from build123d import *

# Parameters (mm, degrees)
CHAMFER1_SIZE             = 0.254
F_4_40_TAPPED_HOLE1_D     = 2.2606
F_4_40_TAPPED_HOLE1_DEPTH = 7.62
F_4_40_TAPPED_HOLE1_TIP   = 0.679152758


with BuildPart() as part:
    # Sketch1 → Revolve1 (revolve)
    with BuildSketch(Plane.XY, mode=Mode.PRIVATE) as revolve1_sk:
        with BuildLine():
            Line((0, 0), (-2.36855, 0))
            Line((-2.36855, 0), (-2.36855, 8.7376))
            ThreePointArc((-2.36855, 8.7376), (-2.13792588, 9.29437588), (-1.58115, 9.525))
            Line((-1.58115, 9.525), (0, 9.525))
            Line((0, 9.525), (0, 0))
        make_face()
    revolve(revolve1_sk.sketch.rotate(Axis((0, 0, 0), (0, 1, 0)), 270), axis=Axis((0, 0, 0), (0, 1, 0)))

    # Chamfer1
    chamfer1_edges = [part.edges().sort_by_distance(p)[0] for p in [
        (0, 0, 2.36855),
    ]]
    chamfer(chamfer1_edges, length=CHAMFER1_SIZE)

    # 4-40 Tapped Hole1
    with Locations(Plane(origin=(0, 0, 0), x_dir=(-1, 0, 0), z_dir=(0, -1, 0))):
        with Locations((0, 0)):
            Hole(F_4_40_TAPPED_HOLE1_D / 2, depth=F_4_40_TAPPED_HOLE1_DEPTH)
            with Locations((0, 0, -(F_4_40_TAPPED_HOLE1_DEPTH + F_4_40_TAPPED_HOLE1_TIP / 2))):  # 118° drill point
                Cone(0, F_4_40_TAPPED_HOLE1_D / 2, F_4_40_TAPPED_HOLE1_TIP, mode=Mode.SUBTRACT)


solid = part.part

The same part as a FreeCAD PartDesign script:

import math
import FreeCAD as App
import Part
import Sketcher
from FreeCAD import Vector
Q = App.Units.Quantity


def edges_at(feature, points):
    """Names of the edges that pass closest to the given points."""
    edges = feature.Shape.Edges
    near = lambda p: min(range(len(edges)), key=lambda i: edges[i].distToShape(Part.Vertex(*p))[0])
    return sorted({f"Edge{near(p) + 1}" for p in points})

doc = App.newDocument("Part")
params = doc.addObject("Spreadsheet::Sheet", "Params")
for row, (alias, value) in enumerate([
    ("sketch1_radius", "0.031 in"),
    ("sketch1_height", "0.375 in"),
    ("revolution_angle", "360 deg"),
    ("chamfer_size", "0.01 in"),
    ("sketch2_diameter", "0.089 in"),
    ("hole_diameter", "0.089 in"),
    ("hole_depth", "0.3 in"),
], start=1):
    params.set(f"A{row}", alias)
    params.set(f"B{row}", "=" + value)
    params.setAlias(f"B{row}", alias)

body = doc.addObject("PartDesign::Body", "Body")

sketch1 = body.newObject("Sketcher::SketchObject", "Sketch")
sketch1.AttachmentSupport = (doc.getObject("XY_Plane"), [""])
sketch1.MapMode = "FlatFace"
sketch1.addGeometry(Part.LineSegment(Vector(-2.4, 0, 0), Vector(0, 0, 0)), False)
sketch1.addGeometry(Part.LineSegment(Vector(0, 0, 0), Vector(0, 9.5, 0)), False)
sketch1.addGeometry(Part.LineSegment(Vector(0, 9.5, 0), Vector(-1.6, 9.5, 0)), False)
sketch1.addGeometry(Part.ArcOfCircle(Part.Circle(Vector(-1.6, 8.7, 0), Vector(0, 0, 1), 0.8), math.radians(90), math.radians(180)), False)
sketch1.addGeometry(Part.LineSegment(Vector(-2.4, 8.7, 0), Vector(-2.4, 0, 0)), False)
sketch1.addConstraint(Sketcher.Constraint("Coincident", 0, 2, 1, 1))
sketch1.addConstraint(Sketcher.Constraint("Coincident", 1, 2, 2, 1))
sketch1.addConstraint(Sketcher.Constraint("Tangent", 2, 2, 3, 1))
sketch1.addConstraint(Sketcher.Constraint("Tangent", 3, 2, 4, 1))
sketch1.addConstraint(Sketcher.Constraint("Coincident", 4, 2, 0, 1))
sketch1.addConstraint(Sketcher.Constraint("Horizontal", 0))
sketch1.addConstraint(Sketcher.Constraint("Vertical", 1))
sketch1.addConstraint(Sketcher.Constraint("Horizontal", 2))
sketch1.addConstraint(Sketcher.Constraint("Vertical", 4))
sketch1.addConstraint(Sketcher.Constraint("Coincident", 0, 2, -1, 1))
sketch1.addConstraint(Sketcher.Constraint("Radius", 3, Q("0.031 in")))
sketch1.addConstraint(Sketcher.Constraint("DistanceY", 1, 1, 1, 2, Q("0.375 in")))
sketch1.addConstraint(Sketcher.Constraint("DistanceX", 0, 1, 0, 2, 2.36855))
sketch1.setExpression("Constraints[10]", "Params.sketch1_radius")
sketch1.setExpression("Constraints[11]", "Params.sketch1_height")
revolution = body.newObject("PartDesign::Revolution", "Revolution")
revolution.Profile = sketch1
revolution.ReferenceAxis = (sketch1, ["V_Axis"])
revolution.setExpression("Angle", "Params.revolution_angle")
doc.recompute()

chamfer = body.newObject("PartDesign::Chamfer", "Chamfer")
chamfer.Base = (revolution, edges_at(revolution, [(0, 0, 2.369)]))
chamfer.setExpression("Size", "Params.chamfer_size")

sketch2 = body.newObject("Sketcher::SketchObject", "Sketch001")
sketch2.AttachmentSupport = (doc.getObject("XZ_Plane"), [""])
sketch2.MapMode = "FlatFace"
sketch2.addGeometry(Part.Circle(Vector(0, 0, 0), Vector(0, 0, 1), 1.1), False)
sketch2.addConstraint(Sketcher.Constraint("Coincident", 0, 3, -1, 1))
sketch2.addConstraint(Sketcher.Constraint("Diameter", 0, Q("0.089 in")))
sketch2.setExpression("Constraints[1]", "Params.sketch2_diameter")
doc.recompute()
hole = body.newObject("PartDesign::Hole", "Hole")
hole.Profile = sketch2
hole.ThreadType = "None"
hole.setExpression("Diameter", "Params.hole_diameter")
hole.DepthType = "Dimension"
hole.setExpression("Depth", "Params.hole_depth")
hole.DrillPoint = "Angled"
hole.DrillPointAngle = 118

doc.recompute()
